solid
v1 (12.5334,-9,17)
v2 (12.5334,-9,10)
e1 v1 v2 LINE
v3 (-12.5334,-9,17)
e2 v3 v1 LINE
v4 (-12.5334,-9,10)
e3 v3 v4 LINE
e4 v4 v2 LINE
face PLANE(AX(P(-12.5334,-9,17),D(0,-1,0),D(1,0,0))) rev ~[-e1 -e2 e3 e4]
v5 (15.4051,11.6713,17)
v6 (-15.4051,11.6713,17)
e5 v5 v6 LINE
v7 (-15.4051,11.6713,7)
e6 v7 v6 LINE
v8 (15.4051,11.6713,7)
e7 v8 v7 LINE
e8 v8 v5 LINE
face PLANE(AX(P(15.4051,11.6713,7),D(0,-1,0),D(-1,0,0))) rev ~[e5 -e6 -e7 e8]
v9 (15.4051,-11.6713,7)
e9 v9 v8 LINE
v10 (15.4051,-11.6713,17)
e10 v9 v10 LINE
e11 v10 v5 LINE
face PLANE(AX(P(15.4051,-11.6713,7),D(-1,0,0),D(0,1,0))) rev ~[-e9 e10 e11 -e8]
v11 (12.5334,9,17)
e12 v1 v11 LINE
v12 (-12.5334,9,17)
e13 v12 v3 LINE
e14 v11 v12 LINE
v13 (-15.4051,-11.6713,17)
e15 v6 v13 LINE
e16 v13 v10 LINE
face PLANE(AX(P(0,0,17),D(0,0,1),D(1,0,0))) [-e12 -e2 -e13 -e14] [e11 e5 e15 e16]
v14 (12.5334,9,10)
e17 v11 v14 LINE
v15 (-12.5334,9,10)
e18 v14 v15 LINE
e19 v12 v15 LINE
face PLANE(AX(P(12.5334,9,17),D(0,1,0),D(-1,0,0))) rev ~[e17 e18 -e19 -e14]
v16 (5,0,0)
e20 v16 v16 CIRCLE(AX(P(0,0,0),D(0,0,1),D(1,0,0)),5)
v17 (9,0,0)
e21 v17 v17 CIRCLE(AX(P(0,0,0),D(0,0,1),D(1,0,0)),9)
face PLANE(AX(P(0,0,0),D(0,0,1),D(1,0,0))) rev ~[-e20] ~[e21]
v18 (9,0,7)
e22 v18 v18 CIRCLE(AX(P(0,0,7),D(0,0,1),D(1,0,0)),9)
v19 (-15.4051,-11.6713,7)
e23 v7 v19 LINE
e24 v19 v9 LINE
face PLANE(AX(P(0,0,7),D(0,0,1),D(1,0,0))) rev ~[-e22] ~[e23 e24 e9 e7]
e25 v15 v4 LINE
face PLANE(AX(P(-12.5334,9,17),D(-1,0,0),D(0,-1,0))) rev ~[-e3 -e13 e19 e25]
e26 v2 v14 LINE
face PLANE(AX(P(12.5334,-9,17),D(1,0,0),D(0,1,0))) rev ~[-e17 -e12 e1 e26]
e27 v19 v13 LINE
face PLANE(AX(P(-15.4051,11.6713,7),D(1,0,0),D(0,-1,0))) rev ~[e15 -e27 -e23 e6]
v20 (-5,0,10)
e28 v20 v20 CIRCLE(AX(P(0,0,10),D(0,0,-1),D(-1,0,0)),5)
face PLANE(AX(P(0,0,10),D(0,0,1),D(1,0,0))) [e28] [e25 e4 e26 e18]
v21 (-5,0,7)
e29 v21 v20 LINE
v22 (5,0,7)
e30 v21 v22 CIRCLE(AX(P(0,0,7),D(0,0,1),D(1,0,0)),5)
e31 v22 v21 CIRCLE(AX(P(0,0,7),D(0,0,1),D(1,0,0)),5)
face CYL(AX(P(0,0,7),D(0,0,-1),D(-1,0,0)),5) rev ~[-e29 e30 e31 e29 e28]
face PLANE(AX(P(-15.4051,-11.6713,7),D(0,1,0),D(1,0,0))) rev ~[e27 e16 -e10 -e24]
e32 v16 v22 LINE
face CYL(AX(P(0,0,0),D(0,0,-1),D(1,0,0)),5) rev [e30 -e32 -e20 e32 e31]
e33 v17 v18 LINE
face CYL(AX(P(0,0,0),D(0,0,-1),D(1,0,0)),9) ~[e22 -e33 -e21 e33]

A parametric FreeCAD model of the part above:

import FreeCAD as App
import Part
import Sketcher
from FreeCAD import Vector
Q = App.Units.Quantity


def add_polygon(sketch, points):
    """Adds a closed chain of lines whose ends are joined by coincident constraints."""
    first, n = sketch.GeometryCount, len(points)
    for a, b in zip(points, points[1:] + points[:1]):
        sketch.addGeometry(Part.LineSegment(App.Vector(*a, 0), App.Vector(*b, 0)), False)
    for i in range(n):
        sketch.addConstraint(Sketcher.Constraint("Coincident", first + i, 2, first + (i + 1) % n, 1))

doc = App.newDocument("Part")
body = doc.addObject("PartDesign::Body", "Body")

sketch1 = doc.addObject("Sketcher::SketchObject", "Sketch")
body.addObject(sketch1)
sketch1.AttachmentSupport = (doc.XY_Plane, [""])
sketch1.MapMode = "FlatFace"
sketch1.addGeometry([
    Part.Circle(Vector(0, 0, 0), Vector(0, 0, 1), 9),
    Part.Circle(Vector(0, 0, 0), Vector(0, 0, 1), 5),
], False)
sketch1.addConstraint([
    Sketcher.Constraint("Coincident", 0, 3, -1, 1),
    Sketcher.Constraint("Coincident", 1, 3, -1, 1),
    Sketcher.Constraint("Diameter", 1, Q("0.3937 in")),
    Sketcher.Constraint("Diameter", 0, 18.0),
])
pad1 = doc.addObject("PartDesign::Pad", "Pad")
body.addObject(pad1)
pad1.Profile = sketch1
pad1.Length = Q("0.2755906 in")

sketch2 = doc.addObject("Sketcher::SketchObject", "Sketch001")
body.addObject(sketch2)
sketch2.AttachmentSupport = (doc.XY_Plane, [""])
sketch2.MapMode = "FlatFace"
sketch2.AttachmentOffset = App.Placement(Vector(0, 0, 0.2755906 * 25.4), App.Rotation())
add_polygon(sketch2, [(-15.4051, 11.6713), (-15.4051, -11.6713), (15.4051, -11.6713), (15.4051, 11.6713)])
sketch2.addConstraint([
    Sketcher.Constraint("Vertical", 0),
    Sketcher.Constraint("Horizontal", 1),
    Sketcher.Constraint("Vertical", 2),
    Sketcher.Constraint("Horizontal", 3),
    Sketcher.Constraint("Symmetric", 0, 2, 2, 2, -1, 1),
    Sketcher.Constraint("DistanceX", 1, 1, 1, 2, Q("1.213 in")),
    Sketcher.Constraint("DistanceY", 0, 2, 0, 1, Q("0.919 in")),
])
pad2 = doc.addObject("PartDesign::Pad", "Pad001")
body.addObject(pad2)
pad2.Profile = sketch2
pad2.Length = Q("0.3937008 in")

sketch3 = doc.addObject("Sketcher::SketchObject", "Sketch002")
body.addObject(sketch3)
sketch3.AttachmentSupport = (doc.XY_Plane, [""])
sketch3.MapMode = "FlatFace"
sketch3.AttachmentOffset = App.Placement(Vector(0, 0, 0.6692913 * 25.4), App.Rotation())
add_polygon(sketch3, [(-12.5334, 9), (-12.5334, -9), (12.5334, -9), (12.5334, 9)])
sketch3.addConstraint([
    Sketcher.Constraint("Vertical", 0),
    Sketcher.Constraint("Horizontal", 1),
    Sketcher.Constraint("Vertical", 2),
    Sketcher.Constraint("Horizontal", 3),
    Sketcher.Constraint("Symmetric", 0, 2, 2, 2, -1, 1),
    Sketcher.Constraint("DistanceX", 1, 1, 1, 2, 25.0668),
    Sketcher.Constraint("DistanceY", 0, 2, 0, 1, 18.0),
])
pocket1 = doc.addObject("PartDesign::Pocket", "Pocket")
body.addObject(pocket1)
pocket1.Profile = sketch3
pocket1.Length = Q("0.2755906 in")

sketch4 = doc.addObject("Sketcher::SketchObject", "Sketch003")
body.addObject(sketch4)
sketch4.AttachmentSupport = (doc.XY_Plane, [""])
sketch4.MapMode = "FlatFace"
sketch4.AttachmentOffset = App.Placement(Vector(0, 0, 0.2755906 * 25.4), App.Rotation())
sketch4.addGeometry(Part.Circle(Vector(0, 0, 0), Vector(0, 0, 1), 5), False)
sketch4.addConstraint([
    Sketcher.Constraint("Coincident", 0, 3, -1, 1),
    Sketcher.Constraint("Diameter", 0, Q("0.3937 in")),
])
pocket2 = doc.addObject("PartDesign::Pocket", "Pocket001")
body.addObject(pocket2)
pocket2.Profile = sketch4
pocket2.Length = Q("0.2755906 in")
pocket2.Reversed = True

doc.recompute()
